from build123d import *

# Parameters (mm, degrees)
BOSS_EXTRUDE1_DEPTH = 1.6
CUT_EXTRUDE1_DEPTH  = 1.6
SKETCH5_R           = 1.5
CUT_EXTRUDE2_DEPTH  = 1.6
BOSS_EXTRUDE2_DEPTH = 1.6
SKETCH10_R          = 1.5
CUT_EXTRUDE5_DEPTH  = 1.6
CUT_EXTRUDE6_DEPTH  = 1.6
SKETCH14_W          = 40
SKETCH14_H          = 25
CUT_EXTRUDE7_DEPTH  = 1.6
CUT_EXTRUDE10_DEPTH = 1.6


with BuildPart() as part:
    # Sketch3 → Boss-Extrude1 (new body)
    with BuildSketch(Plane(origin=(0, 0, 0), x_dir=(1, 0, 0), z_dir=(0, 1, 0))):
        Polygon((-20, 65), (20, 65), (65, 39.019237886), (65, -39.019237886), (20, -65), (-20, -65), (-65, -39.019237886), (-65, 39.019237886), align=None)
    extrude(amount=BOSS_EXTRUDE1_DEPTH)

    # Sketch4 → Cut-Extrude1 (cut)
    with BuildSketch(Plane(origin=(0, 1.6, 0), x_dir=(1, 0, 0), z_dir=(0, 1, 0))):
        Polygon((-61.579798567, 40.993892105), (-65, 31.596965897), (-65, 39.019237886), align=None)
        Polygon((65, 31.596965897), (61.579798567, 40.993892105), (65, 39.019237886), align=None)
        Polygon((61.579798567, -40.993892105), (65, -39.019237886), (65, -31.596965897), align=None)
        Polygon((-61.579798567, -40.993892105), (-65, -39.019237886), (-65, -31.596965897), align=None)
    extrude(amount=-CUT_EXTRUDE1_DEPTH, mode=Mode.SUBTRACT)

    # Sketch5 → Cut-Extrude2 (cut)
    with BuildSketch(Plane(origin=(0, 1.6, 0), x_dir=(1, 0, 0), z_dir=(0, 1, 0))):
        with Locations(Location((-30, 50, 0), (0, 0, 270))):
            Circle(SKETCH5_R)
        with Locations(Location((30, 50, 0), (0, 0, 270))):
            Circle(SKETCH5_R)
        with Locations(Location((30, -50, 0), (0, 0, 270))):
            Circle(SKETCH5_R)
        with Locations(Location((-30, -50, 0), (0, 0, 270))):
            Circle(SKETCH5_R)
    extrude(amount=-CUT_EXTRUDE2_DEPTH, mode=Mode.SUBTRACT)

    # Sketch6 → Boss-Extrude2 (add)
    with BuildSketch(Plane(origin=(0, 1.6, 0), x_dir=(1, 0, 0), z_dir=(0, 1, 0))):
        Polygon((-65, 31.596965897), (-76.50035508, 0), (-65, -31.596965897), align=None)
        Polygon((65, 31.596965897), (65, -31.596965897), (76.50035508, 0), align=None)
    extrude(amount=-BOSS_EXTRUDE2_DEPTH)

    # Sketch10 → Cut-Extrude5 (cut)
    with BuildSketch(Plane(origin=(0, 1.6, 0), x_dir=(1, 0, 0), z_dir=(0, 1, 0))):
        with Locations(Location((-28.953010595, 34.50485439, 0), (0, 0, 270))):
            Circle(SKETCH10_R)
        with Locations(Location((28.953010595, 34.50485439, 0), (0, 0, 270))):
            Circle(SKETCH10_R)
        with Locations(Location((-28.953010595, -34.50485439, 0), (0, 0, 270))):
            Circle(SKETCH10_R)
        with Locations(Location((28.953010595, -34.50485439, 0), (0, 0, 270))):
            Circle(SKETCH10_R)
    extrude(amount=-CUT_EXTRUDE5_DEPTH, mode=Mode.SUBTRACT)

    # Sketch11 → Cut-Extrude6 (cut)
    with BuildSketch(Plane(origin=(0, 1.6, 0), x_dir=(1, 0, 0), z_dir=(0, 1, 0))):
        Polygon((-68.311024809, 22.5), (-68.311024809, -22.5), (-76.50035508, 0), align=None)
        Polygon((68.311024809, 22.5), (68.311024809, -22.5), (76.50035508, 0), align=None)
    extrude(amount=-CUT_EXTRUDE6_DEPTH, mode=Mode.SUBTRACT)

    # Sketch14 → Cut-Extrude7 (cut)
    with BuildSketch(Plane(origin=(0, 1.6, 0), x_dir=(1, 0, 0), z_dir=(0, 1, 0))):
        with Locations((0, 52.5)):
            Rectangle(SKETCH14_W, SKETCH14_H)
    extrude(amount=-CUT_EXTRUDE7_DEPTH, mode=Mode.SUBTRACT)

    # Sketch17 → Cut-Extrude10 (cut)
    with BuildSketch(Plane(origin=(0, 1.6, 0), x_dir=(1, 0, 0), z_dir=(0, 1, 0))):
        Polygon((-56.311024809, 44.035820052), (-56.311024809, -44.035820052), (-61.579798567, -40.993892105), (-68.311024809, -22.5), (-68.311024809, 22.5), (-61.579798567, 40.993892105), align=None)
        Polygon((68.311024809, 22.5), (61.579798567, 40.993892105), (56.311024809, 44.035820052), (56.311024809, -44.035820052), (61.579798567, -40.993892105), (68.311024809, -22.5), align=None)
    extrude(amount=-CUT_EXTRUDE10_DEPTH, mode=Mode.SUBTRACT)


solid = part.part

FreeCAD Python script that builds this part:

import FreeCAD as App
import Part
import Sketcher
from FreeCAD import Vector
Q = App.Units.Quantity


def add_polygon(sketch, points):
    """Adds a closed chain of lines whose ends are joined by coincident constraints."""
    first, n = sketch.GeometryCount, len(points)
    for a, b in zip(points, points[1:] + points[:1]):
        sketch.addGeometry(Part.LineSegment(App.Vector(*a, 0), App.Vector(*b, 0)), False)
    for i in range(n):
        sketch.addConstraint(Sketcher.Constraint("Coincident", first + i, 2, first + (i + 1) % n, 1))

doc = App.newDocument("Part")
params = doc.addObject("Spreadsheet::Sheet", "Params")
for row, (alias, value) in enumerate([
    ("sketch1_width", "40 mm"),
    ("pad1_length", "1.6 mm"),
    ("sketch2_length", "10 mm"),
    ("pocket1_length", "1.6 mm"),
    ("sketch3_diameter", "3 mm"),
    ("pocket2_length", "1.6 mm"),
    ("pad2_length", "1.6 mm"),
    ("sketch5_diameter", "3 mm"),
    ("pocket3_length", "1.6 mm"),
    ("sketch6_height", "45 mm"),
    ("pocket4_length", "1.6 mm"),
    ("sketch7_width", "40 mm"),
    ("sketch7_height", "25 mm"),
    ("pocket5_length", "1.6 mm"),
    ("sketch8_height", "45 mm"),
    ("pocket6_length", "1.6 mm"),
], start=1):
    params.set(f"A{row}", alias)
    params.set(f"B{row}", "=" + value)
    params.setAlias(f"B{row}", alias)

body = doc.addObject("PartDesign::Body", "Body")

# Sketch on XZ plane
sketch1 = doc.addObject("Sketcher::SketchObject", "Sketch")
body.addObject(sketch1)
sketch1.AttachmentSupport = (doc.XZ_Plane, [""])
sketch1.MapMode = "FlatFace"
add_polygon(sketch1, [(20, -65), (-20, -65), (-65, -39), (-65, 39), (-20, 65), (20, 65), (65, 39), (65, -39)])  # lines 0-7
sketch1.addConstraint([
    Sketcher.Constraint("Horizontal", 0),
    Sketcher.Constraint("Vertical", 2),
    Sketcher.Constraint("Horizontal", 4),
    Sketcher.Constraint("Vertical", 6),
    Sketcher.Constraint("Symmetric", 0, 2, 4, 2, -1, 1),
    Sketcher.Constraint("Symmetric", 1, 2, 5, 2, -1, 1),
    Sketcher.Constraint("Parallel", 3, 7),
    Sketcher.Constraint("Horizontal", 2, 2, 5, 2),
    Sketcher.Constraint("Horizontal", 1, 2, 6, 2),
    Sketcher.Constraint("Vertical", 0, 2, 3, 2),
    Sketcher.Constraint("DistanceX", 0, 2, 0, 1, 40.0),
    Sketcher.Constraint("Angle", 1, Q("150 deg")),
    Sketcher.Constraint("DistanceY", 0, 2, -1, 1, 65.0),
    Sketcher.Constraint("DistanceX", 1, 2, -1, 1, 65.0),
])
sketch1.setExpression("Constraints[18]", "Params.sketch1_width")
pad1 = doc.addObject("PartDesign::Pad", "Pad")
body.addObject(pad1)
pad1.Profile = sketch1
pad1.setExpression("Length", "Params.pad1_length")
pad1.Reversed = True

# Sketch on XZ plane
sketch2 = doc.addObject("Sketcher::SketchObject", "Sketch001")
body.addObject(sketch2)
sketch2.AttachmentSupport = (doc.XZ_Plane, [""])
sketch2.MapMode = "FlatFace"
sketch2.AttachmentOffset = App.Placement(Vector(0, 0, -1.6), App.Rotation())
add_polygon(sketch2, [(-65, -31.6), (-61.6, -41), (-65, -39)])  # lines 0-2
add_polygon(sketch2, [(61.6, -41), (65, -31.6), (65, -39)])  # lines 3-5
add_polygon(sketch2, [(61.6, 41), (65, 39), (65, 31.6)])  # lines 6-8
add_polygon(sketch2, [(-65, 39), (-61.6, 41), (-65, 31.6)])  # lines 9-11
sketch2.addConstraint([
    Sketcher.Constraint("Vertical", 2),
    Sketcher.Constraint("Vertical", 4),
    Sketcher.Constraint("Vertical", 7),
    Sketcher.Constraint("Vertical", 11),
    Sketcher.Constraint("Symmetric", 1, 2, 6, 2, -1, 1),
    Sketcher.Constraint("Symmetric", 0, 2, 8, 2, -1, 1),
    Sketcher.Constraint("Symmetric", 5, 2, 9, 2, -1, 1),
    Sketcher.Constraint("Symmetric", 3, 2, 10, 2, -1, 1),
    Sketcher.Constraint("Symmetric", 2, 2, 3, 2, -2),
    Sketcher.Constraint("Symmetric", 0, 2, 5, 2, -2),
    Sketcher.Constraint("Parallel", 0, 8),
    Sketcher.Constraint("Parallel", 5, 9),
    Sketcher.Constraint("Horizontal", 1, 2, 4, 2),
    Sketcher.Constraint("Angle", 0, Q("-70 deg")),
    Sketcher.Constraint("Angle", 1, Q("150 deg")),
    Sketcher.Constraint("Distance", 0, 10.0),
    Sketcher.Constraint("DistanceX", 1, 2, -1, 1, 65.0),
    Sketcher.Constraint("DistanceY", 5, 2, 6, 2, 80.01313),
])
sketch2.setExpression("Constraints[27]", "Params.sketch2_length")
pocket1 = doc.addObject("PartDesign::Pocket", "Pocket")
body.addObject(pocket1)
pocket1.Profile = sketch2
pocket1.setExpression("Length", "Params.pocket1_length")
pocket1.Reversed = True

# Sketch on XZ plane
sketch3 = doc.addObject("Sketcher::SketchObject", "Sketch002")
body.addObject(sketch3)
sketch3.AttachmentSupport = (doc.XZ_Plane, [""])
sketch3.MapMode = "FlatFace"
sketch3.AttachmentOffset = App.Placement(Vector(0, 0, -1.6), App.Rotation())
sketch3.addGeometry([
    Part.Circle(Vector(-30, -50, 0), Vector(0, 0, 1), 1.5),
    Part.Circle(Vector(30, -50, 0), Vector(0, 0, 1), 1.5),
    Part.Circle(Vector(30, 50, 0), Vector(0, 0, 1), 1.5),
    Part.Circle(Vector(-30, 50, 0), Vector(0, 0, 1), 1.5),
], False)
sketch3.addConstraint([
    Sketcher.Constraint("Equal", 0, 1),
    Sketcher.Constraint("Equal", 1, 2),
    Sketcher.Constraint("Equal", 2, 3),
    Sketcher.Constraint("Symmetric", 0, 3, 2, 3, -1, 1),
    Sketcher.Constraint("Symmetric", 1, 3, 3, 3, -1, 1),
    Sketcher.Constraint("Symmetric", 0, 3, 1, 3, -2),
    Sketcher.Constraint("Diameter", 0, 3.0),
    Sketcher.Constraint("DistanceX", 0, 3, -1, 1, 30.0),
    Sketcher.Constraint("DistanceY", 0, 3, -1, 1, 50.0),
])
sketch3.setExpression("Constraints[6]", "Params.sketch3_diameter")
pocket2 = doc.addObject("PartDesign::Pocket", "Pocket001")
body.addObject(pocket2)
pocket2.Profile = sketch3
pocket2.setExpression("Length", "Params.pocket2_length")
pocket2.Reversed = True

# Sketch on XZ plane
sketch4 = doc.addObject("Sketcher::SketchObject", "Sketch003")
body.addObject(sketch4)
sketch4.AttachmentSupport = (doc.XZ_Plane, [""])
sketch4.MapMode = "FlatFace"
sketch4.AttachmentOffset = App.Placement(Vector(0, 0, -1.6), App.Rotation())
add_polygon(sketch4, [(-65, -32), (-77, 0), (-65, 32)])  # lines 0-2
add_polygon(sketch4, [(65, -32), (65, 32), (77, 0)])  # lines 3-5
sketch4.addConstraint([
    Sketcher.Constraint("Vertical", 2),
    Sketcher.Constraint("Vertical", 3),
    Sketcher.Constraint("Symmetric", 2, 2, 3, 2, -1, 1),
    Sketcher.Constraint("Symmetric", 0, 2, 4, 2, -1, 1),
    Sketcher.Constraint("PointOnObject", 0, 2, -1),
    Sketcher.Constraint("Parallel", 1, 5),
    Sketcher.Constraint("Horizontal", 1, 2, 3, 2),
    Sketcher.Constraint("Angle", 0, Q("110 deg")),
    Sketcher.Constraint("DistanceX", 1, 2, -1, 1, 65.0),
    Sketcher.Constraint("DistanceY", 2, 2, 2, 1, 63.193932),
])
pad2 = doc.addObject("PartDesign::Pad", "Pad001")
body.addObject(pad2)
pad2.Profile = sketch4
pad2.setExpression("Length", "Params.pad2_length")

# Sketch on XZ plane
sketch5 = doc.addObject("Sketcher::SketchObject", "Sketch004")
body.addObject(sketch5)
sketch5.AttachmentSupport = (doc.XZ_Plane, [""])
sketch5.MapMode = "FlatFace"
sketch5.AttachmentOffset = App.Placement(Vector(0, 0, -1.6), App.Rotation())
sketch5.addGeometry([
    Part.Circle(Vector(-29, -34.5, 0), Vector(0, 0, 1), 1.5),
    Part.Circle(Vector(29, -34.5, 0), Vector(0, 0, 1), 1.5),
    Part.Circle(Vector(-29, 34.5, 0), Vector(0, 0, 1), 1.5),
    Part.Circle(Vector(29, 34.5, 0), Vector(0, 0, 1), 1.5),
], False)
sketch5.addConstraint([
    Sketcher.Constraint("Equal", 0, 1),
    Sketcher.Constraint("Equal", 1, 2),
    Sketcher.Constraint("Equal", 2, 3),
    Sketcher.Constraint("Symmetric", 1, 3, 2, 3, -1, 1),
    Sketcher.Constraint("Symmetric", 0, 3, 3, 3, -1, 1),
    Sketcher.Constraint("Symmetric", 0, 3, 1, 3, -2),
    Sketcher.Constraint("Diameter", 0, 3.0),
    Sketcher.Constraint("DistanceX", 0, 3, -1, 1, 28.953011),
    Sketcher.Constraint("DistanceY", 0, 3, 2, 3, 69.009709),
])
sketch5.setExpression("Constraints[6]", "Params.sketch5_diameter")
pocket3 = doc.addObject("PartDesign::Pocket", "Pocket002")
body.addObject(pocket3)
pocket3.Profile = sketch5
pocket3.setExpression("Length", "Params.pocket3_length")
pocket3.Reversed = True

# Sketch on XZ plane
sketch6 = doc.addObject("Sketcher::SketchObject", "Sketch005")
body.addObject(sketch6)
sketch6.AttachmentSupport = (doc.XZ_Plane, [""])
sketch6.MapMode = "FlatFace"
sketch6.AttachmentOffset = App.Placement(Vector(0, 0, -1.6), App.Rotation())
add_polygon(sketch6, [(-68, 22), (-68, -22), (-77, 0)])  # lines 0-2
add_polygon(sketch6, [(68, -22), (68, 22), (77, 0)])  # lines 3-5
sketch6.addConstraint([
    Sketcher.Constraint("Vertical", 0),
    Sketcher.Constraint("Vertical", 3),
    Sketcher.Constraint("Symmetric", 0, 2, 3, 2, -1, 1),
    Sketcher.Constraint("Symmetric", 1, 2, 4, 2, -1, 1),
    Sketcher.Constraint("PointOnObject", 1, 2, -1),
    Sketcher.Constraint("Parallel", 2, 5),
    Sketcher.Constraint("Horizontal", 2, 2, 3, 2),
    Sketcher.Constraint("DistanceY", 0, 2, 0, 1, 45.0),
    Sketcher.Constraint("Angle", 1, Q("110 deg")),
    Sketcher.Constraint("DistanceX", 2, 2, 3, 2, 136.62205),
])
sketch6.setExpression("Constraints[13]", "Params.sketch6_height")
pocket4 = doc.addObject("PartDesign::Pocket", "Pocket003")
body.addObject(pocket4)
pocket4.Profile = sketch6
pocket4.setExpression("Length", "Params.pocket4_length")
pocket4.Reversed = True

# Sketch on XZ plane
sketch7 = doc.addObject("Sketcher::SketchObject", "Sketch006")
body.addObject(sketch7)
sketch7.AttachmentSupport = (doc.XZ_Plane, [""])
sketch7.MapMode = "FlatFace"
sketch7.AttachmentOffset = App.Placement(Vector(0, 0, -1.6), App.Rotation())
add_polygon(sketch7, [(-20, -65), (-20, -40), (20, -40), (20, -65)])  # lines 0-3
sketch7.addConstraint([
    Sketcher.Constraint("Vertical", 0),
    Sketcher.Constraint("Horizontal", 1),
    Sketcher.Constraint("Vertical", 2),
    Sketcher.Constraint("Horizontal", 3),
    Sketcher.Constraint("DistanceX", 1, 1, 1, 2, 40.0),
    Sketcher.Constraint("DistanceY", 0, 1, 0, 2, 25.0),
    Sketcher.Constraint("DistanceX", 0, 2, -1, 1, 20.0),
    Sketcher.Constraint("DistanceY", 0, 2, -1, 1, 40.0),
])
sketch7.setExpression("Constraints[8]", "Params.sketch7_width")
sketch7.setExpression("Constraints[9]", "Params.sketch7_height")
pocket5 = doc.addObject("PartDesign::Pocket", "Pocket004")
body.addObject(pocket5)
pocket5.Profile = sketch7
pocket5.setExpression("Length", "Params.pocket5_length")
pocket5.Reversed = True

# Sketch on XZ plane
sketch8 = doc.addObject("Sketcher::SketchObject", "Sketch007")
body.addObject(sketch8)
sketch8.AttachmentSupport = (doc.XZ_Plane, [""])
sketch8.MapMode = "FlatFace"
sketch8.AttachmentOffset = App.Placement(Vector(0, 0, -1.6), App.Rotation())
add_polygon(sketch8, [(-56, 44), (-56, -44), (-62, -41), (-68, -22), (-68, 22), (-62, 41)])  # lines 0-5
add_polygon(sketch8, [(68, -22), (62, -41), (56, -44), (56, 44), (62, 41), (68, 22)])  # lines 6-11
sketch8.addConstraint([
    Sketcher.Constraint("Vertical", 0),
    Sketcher.Constraint("Vertical", 3),
    Sketcher.Constraint("Vertical", 8),
    Sketcher.Constraint("Vertical", 11),
    Sketcher.Constraint("Symmetric", 4, 2, 6, 2, -1, 1),
    Sketcher.Constraint("Symmetric", 5, 2, 7, 2, -1, 1),
    Sketcher.Constraint("Symmetric", 1, 2, 9, 2, -1, 1),
    Sketcher.Constraint("Symmetric", 2, 2, 10, 2, -1, 1),
    Sketcher.Constraint("Symmetric", 1, 2, 6, 2, -2),
    Sketcher.Constraint("Parallel", 4, 6),
    Sketcher.Constraint("Parallel", 1, 9),
    Sketcher.Constraint("Horizontal", 0, 2, 7, 2),
    Sketcher.Constraint("Horizontal", 3, 2, 10, 2),
    Sketcher.Constraint("DistanceY", 3, 1, 3, 2, 45.0),
    Sketcher.Constraint("Angle", 1, Q("150 deg")),
    Sketcher.Constraint("Angle", 2, Q("110 deg")),
    Sketcher.Constraint("DistanceX", 2, 2, 0, 2, 12.0),
    Sketcher.Constraint("DistanceY", 0, 2, 0, 1, 88.07164),
    Sketcher.Constraint("DistanceX", 1, 2, -1, 1, 61.579799),
])
sketch8.setExpression("Constraints[25]", "Params.sketch8_height")
pocket6 = doc.addObject("PartDesign::Pocket", "Pocket005")
body.addObject(pocket6)
pocket6.Profile = sketch8
pocket6.setExpression("Length", "Params.pocket6_length")
pocket6.Reversed = True

doc.recompute()
